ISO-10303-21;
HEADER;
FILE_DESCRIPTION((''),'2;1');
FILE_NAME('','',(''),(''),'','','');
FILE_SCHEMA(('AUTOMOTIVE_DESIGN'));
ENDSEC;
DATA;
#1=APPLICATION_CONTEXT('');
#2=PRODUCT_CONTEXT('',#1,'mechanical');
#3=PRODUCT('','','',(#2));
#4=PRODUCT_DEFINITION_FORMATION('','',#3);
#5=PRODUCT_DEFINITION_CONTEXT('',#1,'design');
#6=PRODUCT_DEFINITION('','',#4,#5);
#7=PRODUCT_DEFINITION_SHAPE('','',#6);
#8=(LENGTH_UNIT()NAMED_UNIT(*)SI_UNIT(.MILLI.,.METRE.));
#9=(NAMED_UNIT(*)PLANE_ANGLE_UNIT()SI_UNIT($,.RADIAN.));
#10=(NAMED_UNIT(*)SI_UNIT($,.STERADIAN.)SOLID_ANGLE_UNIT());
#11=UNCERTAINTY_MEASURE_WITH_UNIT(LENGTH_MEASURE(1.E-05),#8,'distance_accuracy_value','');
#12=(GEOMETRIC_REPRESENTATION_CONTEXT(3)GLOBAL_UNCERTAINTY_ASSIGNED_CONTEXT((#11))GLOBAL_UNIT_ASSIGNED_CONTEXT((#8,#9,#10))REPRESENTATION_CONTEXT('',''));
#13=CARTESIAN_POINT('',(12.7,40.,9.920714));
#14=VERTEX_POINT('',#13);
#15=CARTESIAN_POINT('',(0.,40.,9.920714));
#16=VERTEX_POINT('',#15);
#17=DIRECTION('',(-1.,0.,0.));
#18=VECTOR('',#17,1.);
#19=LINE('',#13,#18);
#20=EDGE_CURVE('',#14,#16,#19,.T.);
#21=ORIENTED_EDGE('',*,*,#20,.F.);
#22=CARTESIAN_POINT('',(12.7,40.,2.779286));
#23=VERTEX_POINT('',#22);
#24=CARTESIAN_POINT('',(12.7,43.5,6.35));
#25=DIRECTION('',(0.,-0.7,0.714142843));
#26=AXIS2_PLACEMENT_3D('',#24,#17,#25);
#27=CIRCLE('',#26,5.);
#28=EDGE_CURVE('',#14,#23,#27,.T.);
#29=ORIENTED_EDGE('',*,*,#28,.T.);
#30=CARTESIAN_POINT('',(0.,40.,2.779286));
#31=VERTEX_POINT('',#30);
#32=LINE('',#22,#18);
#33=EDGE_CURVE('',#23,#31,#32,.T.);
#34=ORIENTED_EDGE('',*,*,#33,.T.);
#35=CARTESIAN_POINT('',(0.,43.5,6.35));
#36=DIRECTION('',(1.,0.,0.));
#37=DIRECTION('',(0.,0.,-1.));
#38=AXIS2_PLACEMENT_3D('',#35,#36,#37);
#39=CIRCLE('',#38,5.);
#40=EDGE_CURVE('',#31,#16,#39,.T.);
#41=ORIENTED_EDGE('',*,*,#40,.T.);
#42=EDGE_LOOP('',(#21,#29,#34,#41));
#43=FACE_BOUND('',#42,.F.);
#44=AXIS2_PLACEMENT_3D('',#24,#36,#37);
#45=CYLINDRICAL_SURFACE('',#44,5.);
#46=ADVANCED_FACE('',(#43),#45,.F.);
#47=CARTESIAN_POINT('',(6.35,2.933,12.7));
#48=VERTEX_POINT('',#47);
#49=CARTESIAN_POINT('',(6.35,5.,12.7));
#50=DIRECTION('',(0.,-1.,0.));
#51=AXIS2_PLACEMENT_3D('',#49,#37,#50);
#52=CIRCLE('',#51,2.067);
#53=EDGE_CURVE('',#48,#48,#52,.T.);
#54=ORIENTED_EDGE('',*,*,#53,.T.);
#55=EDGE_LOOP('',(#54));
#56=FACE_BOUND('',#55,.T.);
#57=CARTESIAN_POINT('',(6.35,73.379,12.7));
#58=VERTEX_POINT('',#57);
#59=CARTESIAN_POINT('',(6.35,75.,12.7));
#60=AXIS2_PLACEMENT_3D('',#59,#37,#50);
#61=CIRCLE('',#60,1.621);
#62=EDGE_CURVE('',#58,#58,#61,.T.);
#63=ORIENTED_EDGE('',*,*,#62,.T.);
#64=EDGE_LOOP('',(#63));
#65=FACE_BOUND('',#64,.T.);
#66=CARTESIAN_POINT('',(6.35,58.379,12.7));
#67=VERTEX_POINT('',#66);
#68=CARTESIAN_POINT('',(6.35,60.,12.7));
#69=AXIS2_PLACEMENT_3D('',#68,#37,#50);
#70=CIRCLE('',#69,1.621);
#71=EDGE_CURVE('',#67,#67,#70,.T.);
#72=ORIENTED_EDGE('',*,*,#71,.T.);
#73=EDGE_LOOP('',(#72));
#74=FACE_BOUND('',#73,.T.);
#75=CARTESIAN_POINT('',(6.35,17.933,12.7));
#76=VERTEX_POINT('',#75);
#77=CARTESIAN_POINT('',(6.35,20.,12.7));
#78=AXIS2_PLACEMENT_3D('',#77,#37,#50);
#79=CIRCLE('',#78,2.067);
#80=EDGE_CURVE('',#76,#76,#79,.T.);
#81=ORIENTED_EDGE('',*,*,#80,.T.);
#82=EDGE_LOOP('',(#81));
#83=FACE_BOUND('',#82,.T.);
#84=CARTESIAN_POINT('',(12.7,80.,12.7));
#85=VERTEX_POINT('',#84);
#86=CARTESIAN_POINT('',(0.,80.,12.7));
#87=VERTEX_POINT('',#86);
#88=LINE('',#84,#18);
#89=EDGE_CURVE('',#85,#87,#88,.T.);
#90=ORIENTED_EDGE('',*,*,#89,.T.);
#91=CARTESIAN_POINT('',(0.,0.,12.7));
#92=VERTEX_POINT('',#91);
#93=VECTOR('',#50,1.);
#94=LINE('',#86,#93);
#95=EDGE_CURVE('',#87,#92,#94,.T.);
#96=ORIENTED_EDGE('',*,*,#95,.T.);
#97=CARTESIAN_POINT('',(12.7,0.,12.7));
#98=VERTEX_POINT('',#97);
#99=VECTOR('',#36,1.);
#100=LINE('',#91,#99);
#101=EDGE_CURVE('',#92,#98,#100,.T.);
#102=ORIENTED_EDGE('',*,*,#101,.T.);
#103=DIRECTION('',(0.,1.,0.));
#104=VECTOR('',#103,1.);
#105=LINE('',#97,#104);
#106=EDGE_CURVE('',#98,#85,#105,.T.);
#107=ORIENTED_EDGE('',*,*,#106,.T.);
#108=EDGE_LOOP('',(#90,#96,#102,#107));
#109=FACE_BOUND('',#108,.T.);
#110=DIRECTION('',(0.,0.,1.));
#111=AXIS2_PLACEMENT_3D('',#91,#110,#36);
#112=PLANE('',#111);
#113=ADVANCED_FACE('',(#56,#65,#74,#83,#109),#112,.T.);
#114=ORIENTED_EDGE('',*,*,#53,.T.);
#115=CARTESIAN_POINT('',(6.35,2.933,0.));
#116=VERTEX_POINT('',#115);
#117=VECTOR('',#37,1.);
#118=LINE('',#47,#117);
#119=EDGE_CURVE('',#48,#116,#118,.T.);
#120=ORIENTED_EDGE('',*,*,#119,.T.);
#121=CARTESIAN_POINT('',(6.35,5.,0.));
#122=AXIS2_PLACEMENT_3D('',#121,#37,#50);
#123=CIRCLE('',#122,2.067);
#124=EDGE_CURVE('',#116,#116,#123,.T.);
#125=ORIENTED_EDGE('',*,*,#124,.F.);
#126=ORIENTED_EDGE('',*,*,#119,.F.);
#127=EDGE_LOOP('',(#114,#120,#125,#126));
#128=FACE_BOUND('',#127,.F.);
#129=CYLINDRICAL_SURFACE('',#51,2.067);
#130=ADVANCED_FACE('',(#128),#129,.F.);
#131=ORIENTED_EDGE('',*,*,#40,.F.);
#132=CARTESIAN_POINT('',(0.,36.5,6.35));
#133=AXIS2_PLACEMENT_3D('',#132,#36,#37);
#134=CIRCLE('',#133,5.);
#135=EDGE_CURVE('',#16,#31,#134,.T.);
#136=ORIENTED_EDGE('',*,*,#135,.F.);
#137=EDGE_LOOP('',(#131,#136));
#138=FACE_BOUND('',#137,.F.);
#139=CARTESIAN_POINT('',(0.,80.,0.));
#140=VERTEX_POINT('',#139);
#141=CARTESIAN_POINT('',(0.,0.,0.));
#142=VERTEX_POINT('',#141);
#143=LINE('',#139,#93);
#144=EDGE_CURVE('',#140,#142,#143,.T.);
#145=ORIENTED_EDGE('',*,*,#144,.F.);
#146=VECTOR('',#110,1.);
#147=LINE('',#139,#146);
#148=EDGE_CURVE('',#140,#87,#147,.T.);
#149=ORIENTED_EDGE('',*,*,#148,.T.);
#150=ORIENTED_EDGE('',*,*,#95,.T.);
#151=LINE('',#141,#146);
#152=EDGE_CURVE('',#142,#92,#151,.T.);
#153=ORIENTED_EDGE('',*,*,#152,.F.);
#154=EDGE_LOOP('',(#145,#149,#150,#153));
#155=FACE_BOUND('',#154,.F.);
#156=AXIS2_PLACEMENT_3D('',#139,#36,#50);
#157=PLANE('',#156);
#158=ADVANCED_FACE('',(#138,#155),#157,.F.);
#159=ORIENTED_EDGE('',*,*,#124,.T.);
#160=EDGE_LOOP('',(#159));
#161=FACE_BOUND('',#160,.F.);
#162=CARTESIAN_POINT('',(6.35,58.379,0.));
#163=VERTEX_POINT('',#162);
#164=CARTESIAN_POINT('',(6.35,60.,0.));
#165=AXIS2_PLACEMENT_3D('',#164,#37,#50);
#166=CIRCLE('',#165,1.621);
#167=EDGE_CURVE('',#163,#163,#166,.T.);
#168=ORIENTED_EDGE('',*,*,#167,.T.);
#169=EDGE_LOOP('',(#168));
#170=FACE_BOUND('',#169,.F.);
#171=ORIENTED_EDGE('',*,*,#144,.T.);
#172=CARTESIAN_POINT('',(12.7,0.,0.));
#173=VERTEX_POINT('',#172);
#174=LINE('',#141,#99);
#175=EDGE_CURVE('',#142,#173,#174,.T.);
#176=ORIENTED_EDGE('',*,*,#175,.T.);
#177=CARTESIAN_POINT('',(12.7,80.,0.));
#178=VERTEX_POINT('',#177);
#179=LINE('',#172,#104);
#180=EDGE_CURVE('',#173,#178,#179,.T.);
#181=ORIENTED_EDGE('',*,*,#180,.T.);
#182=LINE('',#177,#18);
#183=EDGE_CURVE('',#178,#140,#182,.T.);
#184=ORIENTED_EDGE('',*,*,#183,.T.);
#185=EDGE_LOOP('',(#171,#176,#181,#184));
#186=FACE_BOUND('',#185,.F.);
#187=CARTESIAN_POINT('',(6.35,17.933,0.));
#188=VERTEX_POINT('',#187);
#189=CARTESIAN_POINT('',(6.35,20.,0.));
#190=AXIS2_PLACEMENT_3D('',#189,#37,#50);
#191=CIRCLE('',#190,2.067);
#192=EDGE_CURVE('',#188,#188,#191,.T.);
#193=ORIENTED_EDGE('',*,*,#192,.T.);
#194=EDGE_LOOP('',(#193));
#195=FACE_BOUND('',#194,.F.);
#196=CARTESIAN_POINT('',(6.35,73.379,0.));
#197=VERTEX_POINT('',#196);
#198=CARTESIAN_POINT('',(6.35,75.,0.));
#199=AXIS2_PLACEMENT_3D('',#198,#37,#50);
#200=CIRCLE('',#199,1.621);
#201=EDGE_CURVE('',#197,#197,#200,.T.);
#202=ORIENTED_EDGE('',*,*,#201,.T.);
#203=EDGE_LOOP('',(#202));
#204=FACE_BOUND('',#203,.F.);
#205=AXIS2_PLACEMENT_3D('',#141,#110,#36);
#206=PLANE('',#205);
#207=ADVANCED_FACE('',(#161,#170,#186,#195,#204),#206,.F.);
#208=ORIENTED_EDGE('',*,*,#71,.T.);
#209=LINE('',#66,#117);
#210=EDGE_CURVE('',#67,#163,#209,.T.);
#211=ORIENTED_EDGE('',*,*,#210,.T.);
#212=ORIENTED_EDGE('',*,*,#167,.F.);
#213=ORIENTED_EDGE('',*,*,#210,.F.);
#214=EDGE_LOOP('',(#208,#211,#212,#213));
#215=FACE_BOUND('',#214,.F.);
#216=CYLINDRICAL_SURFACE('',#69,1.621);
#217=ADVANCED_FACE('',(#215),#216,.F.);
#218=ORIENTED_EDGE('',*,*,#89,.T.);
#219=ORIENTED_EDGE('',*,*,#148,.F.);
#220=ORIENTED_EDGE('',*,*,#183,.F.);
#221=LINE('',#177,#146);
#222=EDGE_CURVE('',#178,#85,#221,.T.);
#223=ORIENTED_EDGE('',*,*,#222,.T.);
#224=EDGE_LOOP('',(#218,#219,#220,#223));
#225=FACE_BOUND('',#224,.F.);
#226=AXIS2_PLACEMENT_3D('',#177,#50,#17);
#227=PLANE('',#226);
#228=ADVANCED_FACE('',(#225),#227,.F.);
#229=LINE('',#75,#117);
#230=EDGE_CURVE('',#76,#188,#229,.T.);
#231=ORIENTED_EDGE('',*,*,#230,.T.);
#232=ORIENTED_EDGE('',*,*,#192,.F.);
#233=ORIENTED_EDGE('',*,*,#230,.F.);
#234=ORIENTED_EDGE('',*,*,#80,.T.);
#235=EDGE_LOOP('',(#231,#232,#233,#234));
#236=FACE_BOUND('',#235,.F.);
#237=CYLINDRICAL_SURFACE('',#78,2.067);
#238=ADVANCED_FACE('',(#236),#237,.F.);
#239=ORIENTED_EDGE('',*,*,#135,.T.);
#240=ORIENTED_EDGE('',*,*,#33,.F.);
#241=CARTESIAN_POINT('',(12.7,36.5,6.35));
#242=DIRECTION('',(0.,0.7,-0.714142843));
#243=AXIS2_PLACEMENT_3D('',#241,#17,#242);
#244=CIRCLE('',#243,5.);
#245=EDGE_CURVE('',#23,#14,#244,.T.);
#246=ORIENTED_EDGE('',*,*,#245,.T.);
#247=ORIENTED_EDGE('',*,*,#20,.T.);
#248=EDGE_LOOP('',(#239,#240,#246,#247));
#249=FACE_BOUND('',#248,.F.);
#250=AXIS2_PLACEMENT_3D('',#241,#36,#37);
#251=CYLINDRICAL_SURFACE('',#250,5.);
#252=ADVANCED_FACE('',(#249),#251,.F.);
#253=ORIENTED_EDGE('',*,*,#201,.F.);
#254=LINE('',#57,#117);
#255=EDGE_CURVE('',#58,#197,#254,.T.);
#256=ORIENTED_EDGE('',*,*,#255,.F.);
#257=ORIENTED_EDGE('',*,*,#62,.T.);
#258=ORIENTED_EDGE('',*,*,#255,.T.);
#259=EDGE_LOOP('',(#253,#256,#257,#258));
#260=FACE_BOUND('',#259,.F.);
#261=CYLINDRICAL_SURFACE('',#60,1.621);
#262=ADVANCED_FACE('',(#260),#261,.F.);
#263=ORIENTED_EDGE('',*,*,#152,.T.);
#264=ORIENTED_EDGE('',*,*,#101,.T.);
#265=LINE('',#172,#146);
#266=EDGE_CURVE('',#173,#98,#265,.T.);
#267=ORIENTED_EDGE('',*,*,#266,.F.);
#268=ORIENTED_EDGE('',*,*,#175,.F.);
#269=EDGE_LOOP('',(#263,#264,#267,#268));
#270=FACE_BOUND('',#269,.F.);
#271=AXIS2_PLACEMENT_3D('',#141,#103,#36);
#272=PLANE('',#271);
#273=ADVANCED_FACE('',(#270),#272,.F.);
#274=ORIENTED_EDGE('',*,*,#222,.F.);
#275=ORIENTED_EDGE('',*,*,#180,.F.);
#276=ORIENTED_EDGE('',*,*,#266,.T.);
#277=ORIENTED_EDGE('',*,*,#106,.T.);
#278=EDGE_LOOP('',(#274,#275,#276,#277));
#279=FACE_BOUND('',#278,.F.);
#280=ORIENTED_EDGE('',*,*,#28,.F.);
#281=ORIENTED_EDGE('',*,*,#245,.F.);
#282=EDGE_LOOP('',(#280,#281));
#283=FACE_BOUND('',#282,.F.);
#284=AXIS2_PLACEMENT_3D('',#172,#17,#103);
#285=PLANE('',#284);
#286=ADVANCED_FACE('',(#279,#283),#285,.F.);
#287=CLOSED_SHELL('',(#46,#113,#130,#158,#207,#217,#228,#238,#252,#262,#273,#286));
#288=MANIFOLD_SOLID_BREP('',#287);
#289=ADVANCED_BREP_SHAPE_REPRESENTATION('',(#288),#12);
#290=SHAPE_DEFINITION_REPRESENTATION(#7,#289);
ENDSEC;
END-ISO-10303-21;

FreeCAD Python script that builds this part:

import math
import FreeCAD as App
import Part
import Sketcher
from FreeCAD import Vector


def add_polygon(sketch, points):
    """Adds a closed chain of lines whose ends are joined by coincident constraints."""
    first, n = sketch.GeometryCount, len(points)
    for a, b in zip(points, points[1:] + points[:1]):
        sketch.addGeometry(Part.LineSegment(App.Vector(*a, 0), App.Vector(*b, 0)), False)
    for i in range(n):
        sketch.addConstraint(Sketcher.Constraint("Coincident", first + i, 2, first + (i + 1) % n, 1))

doc = App.newDocument("Part")
body = doc.addObject("PartDesign::Body", "Body")

sketch1 = body.newObject("Sketcher::SketchObject", "Sketch")
sketch1.AttachmentSupport = (doc.getObject("XY_Plane"), [""])
sketch1.MapMode = "FlatFace"
add_polygon(sketch1, [(0, 80), (0, 0), (12.7, 0), (12.7, 80)])
sketch1.addConstraint([
    Sketcher.Constraint("Vertical", 0),
    Sketcher.Constraint("Horizontal", 1),
    Sketcher.Constraint("Vertical", 2),
    Sketcher.Constraint("Horizontal", 3),
    Sketcher.Constraint("Coincident", 0, 2, -1, 1),
    Sketcher.Constraint("DistanceY", 0, 2, 0, 1, 80.0),
    Sketcher.Constraint("DistanceX", 1, 1, 1, 2, 12.7),
])
pad1 = body.newObject("PartDesign::Pad", "Pad")
pad1.Profile = sketch1
pad1.Length = 12.7

sketch2 = body.newObject("Sketcher::SketchObject", "Sketch001")
sketch2.AttachmentSupport = (doc.getObject("XY_Plane"), [""])
sketch2.MapMode = "FlatFace"
sketch2.AttachmentOffset = App.Placement(Vector(0, 0, 12.7), App.Rotation())
sketch2.addGeometry([
    Part.Circle(Vector(6.35, 5, 0), Vector(0, 0, 1), 2.067),
    Part.Circle(Vector(6.35, 20, 0), Vector(0, 0, 1), 2.067),
], False)
sketch2.addConstraint([
    Sketcher.Constraint("Equal", 0, 1),
    Sketcher.Constraint("Vertical", 0, 3, 1, 3),
    Sketcher.Constraint("Diameter", 0, 4.134),
    Sketcher.Constraint("DistanceY", -1, 1, 0, 3, 5.0),
    Sketcher.Constraint("DistanceY", -1, 1, 1, 3, 20.0),
    Sketcher.Constraint("DistanceX", -1, 1, 0, 3, 6.35),
])
doc.recompute()
hole = body.newObject("PartDesign::Hole", "Hole")
hole.Profile = sketch2
hole.ThreadType = "None"
hole.Diameter = 4.134
hole.DepthType = "ThroughAll"

sketch3 = body.newObject("Sketcher::SketchObject", "Sketch002")
sketch3.AttachmentSupport = (doc.getObject("XY_Plane"), [""])
sketch3.MapMode = "FlatFace"
sketch3.AttachmentOffset = App.Placement(Vector(0, 0, 12.7), App.Rotation())
sketch3.addGeometry([
    Part.Circle(Vector(6.35, 60, 0), Vector(0, 0, 1), 1.621),
    Part.Circle(Vector(6.35, 75, 0), Vector(0, 0, 1), 1.621),
], False)
sketch3.addConstraint([
    Sketcher.Constraint("Equal", 0, 1),
    Sketcher.Constraint("Vertical", 0, 3, 1, 3),
    Sketcher.Constraint("Diameter", 0, 3.242),
    Sketcher.Constraint("DistanceY", -1, 1, 0, 3, 60.0),
    Sketcher.Constraint("DistanceY", -1, 1, 1, 3, 75.0),
    Sketcher.Constraint("DistanceX", -1, 1, 0, 3, 6.35),
])
doc.recompute()
hole2 = body.newObject("PartDesign::Hole", "Hole001")
hole2.Profile = sketch3
hole2.ThreadType = "None"
hole2.Diameter = 3.242
hole2.DepthType = "ThroughAll"

sketch4 = body.newObject("Sketcher::SketchObject", "Sketch003")
sketch4.AttachmentSupport = (doc.getObject("YZ_Plane"), [""])
sketch4.MapMode = "FlatFace"
sketch4.AttachmentOffset = App.Placement(Vector(0, 0, 12.7), App.Rotation())
sketch4.addGeometry([
    Part.ArcOfCircle(Part.Circle(Vector(36.5, 6.35, 0), Vector(0, 0, 1), 5), math.radians(45.572996), math.radians(314.427004)),
    Part.ArcOfCircle(Part.Circle(Vector(43.5, 6.35, 0), Vector(0, 0, 1), 5), math.radians(-134.427004), math.radians(134.427004)),
], False)
sketch4.addConstraint([
    Sketcher.Constraint("Coincident", 0, 1, 1, 2),
    Sketcher.Constraint("Coincident", 1, 1, 0, 2),
    Sketcher.Constraint("Equal", 0, 1),
    Sketcher.Constraint("Horizontal", 0, 3, 1, 3),
    Sketcher.Constraint("Radius", 0, 5.0),
    Sketcher.Constraint("DistanceX", 0, 3, 1, 3, 7.0),
    Sketcher.Constraint("DistanceX", -1, 1, 0, 1, 40.0),
    Sketcher.Constraint("DistanceY", -1, 1, 0, 3, 6.35),
])
pocket1 = body.newObject("PartDesign::Pocket", "Pocket")
pocket1.Profile = sketch4
pocket1.Type = "ThroughAll"

doc.recompute()
